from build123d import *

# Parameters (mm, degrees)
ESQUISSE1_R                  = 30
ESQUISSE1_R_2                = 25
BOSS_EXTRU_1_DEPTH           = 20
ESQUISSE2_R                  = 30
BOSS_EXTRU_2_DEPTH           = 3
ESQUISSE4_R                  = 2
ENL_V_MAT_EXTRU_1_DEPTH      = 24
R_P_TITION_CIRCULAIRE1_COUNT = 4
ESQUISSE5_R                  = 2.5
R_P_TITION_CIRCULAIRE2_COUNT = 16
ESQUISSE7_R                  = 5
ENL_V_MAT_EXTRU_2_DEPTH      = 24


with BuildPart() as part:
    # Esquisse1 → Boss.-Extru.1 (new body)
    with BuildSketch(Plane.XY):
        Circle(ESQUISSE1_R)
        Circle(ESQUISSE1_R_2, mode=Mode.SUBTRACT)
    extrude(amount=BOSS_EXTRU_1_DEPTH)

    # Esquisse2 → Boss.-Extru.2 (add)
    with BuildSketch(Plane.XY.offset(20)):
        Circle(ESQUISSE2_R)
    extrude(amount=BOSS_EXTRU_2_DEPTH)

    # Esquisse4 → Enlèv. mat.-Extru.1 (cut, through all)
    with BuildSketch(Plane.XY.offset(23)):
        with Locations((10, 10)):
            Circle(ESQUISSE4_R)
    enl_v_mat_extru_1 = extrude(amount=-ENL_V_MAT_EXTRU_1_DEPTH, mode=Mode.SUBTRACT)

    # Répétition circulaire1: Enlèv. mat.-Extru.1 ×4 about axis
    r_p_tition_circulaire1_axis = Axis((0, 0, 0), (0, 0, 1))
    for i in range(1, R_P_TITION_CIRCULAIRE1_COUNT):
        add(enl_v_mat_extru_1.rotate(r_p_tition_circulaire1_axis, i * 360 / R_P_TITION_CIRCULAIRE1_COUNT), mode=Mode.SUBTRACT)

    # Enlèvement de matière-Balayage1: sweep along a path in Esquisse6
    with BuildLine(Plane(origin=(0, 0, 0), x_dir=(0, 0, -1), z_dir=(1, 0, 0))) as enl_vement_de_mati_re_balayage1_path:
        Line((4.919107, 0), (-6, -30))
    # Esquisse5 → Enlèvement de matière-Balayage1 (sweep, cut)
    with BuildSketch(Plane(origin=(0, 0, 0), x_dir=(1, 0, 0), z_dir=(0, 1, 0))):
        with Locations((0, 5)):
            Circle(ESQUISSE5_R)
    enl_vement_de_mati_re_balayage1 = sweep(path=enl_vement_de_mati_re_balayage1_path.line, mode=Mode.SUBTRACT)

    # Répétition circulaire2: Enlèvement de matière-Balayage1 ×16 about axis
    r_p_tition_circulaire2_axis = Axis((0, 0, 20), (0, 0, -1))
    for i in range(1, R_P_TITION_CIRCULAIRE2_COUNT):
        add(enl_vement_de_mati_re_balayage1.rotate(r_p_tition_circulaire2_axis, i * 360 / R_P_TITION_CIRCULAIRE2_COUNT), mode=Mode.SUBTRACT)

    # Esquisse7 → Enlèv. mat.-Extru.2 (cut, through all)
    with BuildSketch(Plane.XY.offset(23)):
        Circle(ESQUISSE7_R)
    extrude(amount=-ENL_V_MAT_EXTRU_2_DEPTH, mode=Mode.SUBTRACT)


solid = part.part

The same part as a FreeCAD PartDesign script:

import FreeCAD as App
import Part
import Sketcher

doc = App.newDocument("Part")
body = doc.addObject("PartDesign::Body", "Body")

sketch1 = body.newObject("Sketcher::SketchObject", "Sketch")
sketch1.AttachmentSupport = (doc.getObject("XY_Plane"), [""])
sketch1.MapMode = "FlatFace"
sketch1.addGeometry([
    Part.Circle(App.Vector(0, 0, 0), App.Vector(0, 0, 1), 30),
    Part.Circle(App.Vector(0, 0, 0), App.Vector(0, 0, 1), 25),
], False)
sketch1.addConstraint([
    Sketcher.Constraint("Coincident", 0, 3, -1, 1),
    Sketcher.Constraint("Coincident", 1, 3, -1, 1),
    Sketcher.Constraint("Diameter", 0, 60.0),
    Sketcher.Constraint("Diameter", 1, 50.0),
])
pad1 = body.newObject("PartDesign::Pad", "Pad")
pad1.Profile = sketch1
pad1.Length = 20

sketch2 = body.newObject("Sketcher::SketchObject", "Sketch001")
sketch2.AttachmentSupport = (doc.getObject("XY_Plane"), [""])
sketch2.MapMode = "FlatFace"
sketch2.AttachmentOffset = App.Placement(App.Vector(0, 0, 20), App.Rotation())
sketch2.addGeometry(Part.Circle(App.Vector(0, 0, 0), App.Vector(0, 0, 1), 30), False)
sketch2.addConstraint([
    Sketcher.Constraint("Coincident", 0, 3, -1, 1),
    Sketcher.Constraint("Diameter", 0, 60.0),
])
pad2 = body.newObject("PartDesign::Pad", "Pad001")
pad2.Profile = sketch2
pad2.Length = 3

sketch3 = body.newObject("Sketcher::SketchObject", "Sketch002")
sketch3.AttachmentSupport = (doc.getObject("XY_Plane"), [""])
sketch3.MapMode = "FlatFace"
sketch3.AttachmentOffset = App.Placement(App.Vector(0, 0, 23), App.Rotation())
sketch3.addGeometry(Part.Circle(App.Vector(10, 10, 0), App.Vector(0, 0, 1), 2), False)
sketch3.addConstraint([
    Sketcher.Constraint("Diameter", 0, 4.0),
    Sketcher.Constraint("DistanceX", -1, 1, 0, 3, 10.0),
    Sketcher.Constraint("DistanceY", -1, 1, 0, 3, 10.0),
])
pocket1 = body.newObject("PartDesign::Pocket", "Pocket")
pocket1.Profile = sketch3
pocket1.Type = "ThroughAll"
doc.recompute()

polarpattern = body.newObject("PartDesign::PolarPattern", "PolarPattern")
polarpattern.Originals = [pocket1]
polarpattern.Axis = (doc.getObject("Z_Axis"), [""])
polarpattern.Angle = 360
polarpattern.Occurrences = 4
body.Tip = polarpattern

sketch4 = body.newObject("Sketcher::SketchObject", "Sketch003")
sketch4.AttachmentSupport = (doc.getObject("XZ_Plane"), [""])
sketch4.MapMode = "FlatFace"
sketch4.addGeometry(Part.Circle(App.Vector(0, -5, 0), App.Vector(0, 0, 1), 2.5), False)
sketch4.addConstraint([
    Sketcher.Constraint("PointOnObject", 0, 3, -2),
    Sketcher.Constraint("Diameter", 0, 5.0),
    Sketcher.Constraint("DistanceY", 0, 3, -1, 1, 5.0),
])

sketch5 = body.newObject("Sketcher::SketchObject", "Sketch004")
sketch5.Placement = App.Placement(App.Vector(0, -1.580971, -4.343681), App.Rotation(App.Vector(0, 0.939692621, -0.342020143), App.Vector(1, 0, 0), App.Vector(0, -0.342020143, -0.939692621), "ZXY"))
sketch5.addGeometry(Part.LineSegment(App.Vector(2, 0, 0), App.Vector(-30, 0, 0)), False)
sketch5.addConstraint([
    Sketcher.Constraint("Horizontal", 0),
    Sketcher.Constraint("PointOnObject", 0, 1, -1),
    Sketcher.Constraint("DistanceX", 0, 2, -1, 1, 30.242899),
    Sketcher.Constraint("DistanceX", 0, 2, 0, 1, 31.925333),
])
doc.recompute()

subtractivepipe = body.newObject("PartDesign::SubtractivePipe", "SubtractivePipe")
subtractivepipe.Profile = sketch4
subtractivepipe.Spine = (sketch5, ["Edge1"])
doc.recompute()

polarpattern2 = body.newObject("PartDesign::PolarPattern", "PolarPattern001")
polarpattern2.Originals = [subtractivepipe]
polarpattern2.Axis = (doc.getObject("Z_Axis"), [""])
polarpattern2.Angle = 360
polarpattern2.Occurrences = 16
body.Tip = polarpattern2

sketch6 = body.newObject("Sketcher::SketchObject", "Sketch005")
sketch6.AttachmentSupport = (doc.getObject("XY_Plane"), [""])
sketch6.MapMode = "FlatFace"
sketch6.AttachmentOffset = App.Placement(App.Vector(0, 0, 23), App.Rotation())
sketch6.addGeometry(Part.Circle(App.Vector(0, 0, 0), App.Vector(0, 0, 1), 5), False)
sketch6.addConstraint([
    Sketcher.Constraint("Coincident", 0, 3, -1, 1),
    Sketcher.Constraint("Diameter", 0, 10.0),
])
pocket2 = body.newObject("PartDesign::Pocket", "Pocket001")
pocket2.Profile = sketch6
pocket2.Type = "ThroughAll"

doc.recompute()
